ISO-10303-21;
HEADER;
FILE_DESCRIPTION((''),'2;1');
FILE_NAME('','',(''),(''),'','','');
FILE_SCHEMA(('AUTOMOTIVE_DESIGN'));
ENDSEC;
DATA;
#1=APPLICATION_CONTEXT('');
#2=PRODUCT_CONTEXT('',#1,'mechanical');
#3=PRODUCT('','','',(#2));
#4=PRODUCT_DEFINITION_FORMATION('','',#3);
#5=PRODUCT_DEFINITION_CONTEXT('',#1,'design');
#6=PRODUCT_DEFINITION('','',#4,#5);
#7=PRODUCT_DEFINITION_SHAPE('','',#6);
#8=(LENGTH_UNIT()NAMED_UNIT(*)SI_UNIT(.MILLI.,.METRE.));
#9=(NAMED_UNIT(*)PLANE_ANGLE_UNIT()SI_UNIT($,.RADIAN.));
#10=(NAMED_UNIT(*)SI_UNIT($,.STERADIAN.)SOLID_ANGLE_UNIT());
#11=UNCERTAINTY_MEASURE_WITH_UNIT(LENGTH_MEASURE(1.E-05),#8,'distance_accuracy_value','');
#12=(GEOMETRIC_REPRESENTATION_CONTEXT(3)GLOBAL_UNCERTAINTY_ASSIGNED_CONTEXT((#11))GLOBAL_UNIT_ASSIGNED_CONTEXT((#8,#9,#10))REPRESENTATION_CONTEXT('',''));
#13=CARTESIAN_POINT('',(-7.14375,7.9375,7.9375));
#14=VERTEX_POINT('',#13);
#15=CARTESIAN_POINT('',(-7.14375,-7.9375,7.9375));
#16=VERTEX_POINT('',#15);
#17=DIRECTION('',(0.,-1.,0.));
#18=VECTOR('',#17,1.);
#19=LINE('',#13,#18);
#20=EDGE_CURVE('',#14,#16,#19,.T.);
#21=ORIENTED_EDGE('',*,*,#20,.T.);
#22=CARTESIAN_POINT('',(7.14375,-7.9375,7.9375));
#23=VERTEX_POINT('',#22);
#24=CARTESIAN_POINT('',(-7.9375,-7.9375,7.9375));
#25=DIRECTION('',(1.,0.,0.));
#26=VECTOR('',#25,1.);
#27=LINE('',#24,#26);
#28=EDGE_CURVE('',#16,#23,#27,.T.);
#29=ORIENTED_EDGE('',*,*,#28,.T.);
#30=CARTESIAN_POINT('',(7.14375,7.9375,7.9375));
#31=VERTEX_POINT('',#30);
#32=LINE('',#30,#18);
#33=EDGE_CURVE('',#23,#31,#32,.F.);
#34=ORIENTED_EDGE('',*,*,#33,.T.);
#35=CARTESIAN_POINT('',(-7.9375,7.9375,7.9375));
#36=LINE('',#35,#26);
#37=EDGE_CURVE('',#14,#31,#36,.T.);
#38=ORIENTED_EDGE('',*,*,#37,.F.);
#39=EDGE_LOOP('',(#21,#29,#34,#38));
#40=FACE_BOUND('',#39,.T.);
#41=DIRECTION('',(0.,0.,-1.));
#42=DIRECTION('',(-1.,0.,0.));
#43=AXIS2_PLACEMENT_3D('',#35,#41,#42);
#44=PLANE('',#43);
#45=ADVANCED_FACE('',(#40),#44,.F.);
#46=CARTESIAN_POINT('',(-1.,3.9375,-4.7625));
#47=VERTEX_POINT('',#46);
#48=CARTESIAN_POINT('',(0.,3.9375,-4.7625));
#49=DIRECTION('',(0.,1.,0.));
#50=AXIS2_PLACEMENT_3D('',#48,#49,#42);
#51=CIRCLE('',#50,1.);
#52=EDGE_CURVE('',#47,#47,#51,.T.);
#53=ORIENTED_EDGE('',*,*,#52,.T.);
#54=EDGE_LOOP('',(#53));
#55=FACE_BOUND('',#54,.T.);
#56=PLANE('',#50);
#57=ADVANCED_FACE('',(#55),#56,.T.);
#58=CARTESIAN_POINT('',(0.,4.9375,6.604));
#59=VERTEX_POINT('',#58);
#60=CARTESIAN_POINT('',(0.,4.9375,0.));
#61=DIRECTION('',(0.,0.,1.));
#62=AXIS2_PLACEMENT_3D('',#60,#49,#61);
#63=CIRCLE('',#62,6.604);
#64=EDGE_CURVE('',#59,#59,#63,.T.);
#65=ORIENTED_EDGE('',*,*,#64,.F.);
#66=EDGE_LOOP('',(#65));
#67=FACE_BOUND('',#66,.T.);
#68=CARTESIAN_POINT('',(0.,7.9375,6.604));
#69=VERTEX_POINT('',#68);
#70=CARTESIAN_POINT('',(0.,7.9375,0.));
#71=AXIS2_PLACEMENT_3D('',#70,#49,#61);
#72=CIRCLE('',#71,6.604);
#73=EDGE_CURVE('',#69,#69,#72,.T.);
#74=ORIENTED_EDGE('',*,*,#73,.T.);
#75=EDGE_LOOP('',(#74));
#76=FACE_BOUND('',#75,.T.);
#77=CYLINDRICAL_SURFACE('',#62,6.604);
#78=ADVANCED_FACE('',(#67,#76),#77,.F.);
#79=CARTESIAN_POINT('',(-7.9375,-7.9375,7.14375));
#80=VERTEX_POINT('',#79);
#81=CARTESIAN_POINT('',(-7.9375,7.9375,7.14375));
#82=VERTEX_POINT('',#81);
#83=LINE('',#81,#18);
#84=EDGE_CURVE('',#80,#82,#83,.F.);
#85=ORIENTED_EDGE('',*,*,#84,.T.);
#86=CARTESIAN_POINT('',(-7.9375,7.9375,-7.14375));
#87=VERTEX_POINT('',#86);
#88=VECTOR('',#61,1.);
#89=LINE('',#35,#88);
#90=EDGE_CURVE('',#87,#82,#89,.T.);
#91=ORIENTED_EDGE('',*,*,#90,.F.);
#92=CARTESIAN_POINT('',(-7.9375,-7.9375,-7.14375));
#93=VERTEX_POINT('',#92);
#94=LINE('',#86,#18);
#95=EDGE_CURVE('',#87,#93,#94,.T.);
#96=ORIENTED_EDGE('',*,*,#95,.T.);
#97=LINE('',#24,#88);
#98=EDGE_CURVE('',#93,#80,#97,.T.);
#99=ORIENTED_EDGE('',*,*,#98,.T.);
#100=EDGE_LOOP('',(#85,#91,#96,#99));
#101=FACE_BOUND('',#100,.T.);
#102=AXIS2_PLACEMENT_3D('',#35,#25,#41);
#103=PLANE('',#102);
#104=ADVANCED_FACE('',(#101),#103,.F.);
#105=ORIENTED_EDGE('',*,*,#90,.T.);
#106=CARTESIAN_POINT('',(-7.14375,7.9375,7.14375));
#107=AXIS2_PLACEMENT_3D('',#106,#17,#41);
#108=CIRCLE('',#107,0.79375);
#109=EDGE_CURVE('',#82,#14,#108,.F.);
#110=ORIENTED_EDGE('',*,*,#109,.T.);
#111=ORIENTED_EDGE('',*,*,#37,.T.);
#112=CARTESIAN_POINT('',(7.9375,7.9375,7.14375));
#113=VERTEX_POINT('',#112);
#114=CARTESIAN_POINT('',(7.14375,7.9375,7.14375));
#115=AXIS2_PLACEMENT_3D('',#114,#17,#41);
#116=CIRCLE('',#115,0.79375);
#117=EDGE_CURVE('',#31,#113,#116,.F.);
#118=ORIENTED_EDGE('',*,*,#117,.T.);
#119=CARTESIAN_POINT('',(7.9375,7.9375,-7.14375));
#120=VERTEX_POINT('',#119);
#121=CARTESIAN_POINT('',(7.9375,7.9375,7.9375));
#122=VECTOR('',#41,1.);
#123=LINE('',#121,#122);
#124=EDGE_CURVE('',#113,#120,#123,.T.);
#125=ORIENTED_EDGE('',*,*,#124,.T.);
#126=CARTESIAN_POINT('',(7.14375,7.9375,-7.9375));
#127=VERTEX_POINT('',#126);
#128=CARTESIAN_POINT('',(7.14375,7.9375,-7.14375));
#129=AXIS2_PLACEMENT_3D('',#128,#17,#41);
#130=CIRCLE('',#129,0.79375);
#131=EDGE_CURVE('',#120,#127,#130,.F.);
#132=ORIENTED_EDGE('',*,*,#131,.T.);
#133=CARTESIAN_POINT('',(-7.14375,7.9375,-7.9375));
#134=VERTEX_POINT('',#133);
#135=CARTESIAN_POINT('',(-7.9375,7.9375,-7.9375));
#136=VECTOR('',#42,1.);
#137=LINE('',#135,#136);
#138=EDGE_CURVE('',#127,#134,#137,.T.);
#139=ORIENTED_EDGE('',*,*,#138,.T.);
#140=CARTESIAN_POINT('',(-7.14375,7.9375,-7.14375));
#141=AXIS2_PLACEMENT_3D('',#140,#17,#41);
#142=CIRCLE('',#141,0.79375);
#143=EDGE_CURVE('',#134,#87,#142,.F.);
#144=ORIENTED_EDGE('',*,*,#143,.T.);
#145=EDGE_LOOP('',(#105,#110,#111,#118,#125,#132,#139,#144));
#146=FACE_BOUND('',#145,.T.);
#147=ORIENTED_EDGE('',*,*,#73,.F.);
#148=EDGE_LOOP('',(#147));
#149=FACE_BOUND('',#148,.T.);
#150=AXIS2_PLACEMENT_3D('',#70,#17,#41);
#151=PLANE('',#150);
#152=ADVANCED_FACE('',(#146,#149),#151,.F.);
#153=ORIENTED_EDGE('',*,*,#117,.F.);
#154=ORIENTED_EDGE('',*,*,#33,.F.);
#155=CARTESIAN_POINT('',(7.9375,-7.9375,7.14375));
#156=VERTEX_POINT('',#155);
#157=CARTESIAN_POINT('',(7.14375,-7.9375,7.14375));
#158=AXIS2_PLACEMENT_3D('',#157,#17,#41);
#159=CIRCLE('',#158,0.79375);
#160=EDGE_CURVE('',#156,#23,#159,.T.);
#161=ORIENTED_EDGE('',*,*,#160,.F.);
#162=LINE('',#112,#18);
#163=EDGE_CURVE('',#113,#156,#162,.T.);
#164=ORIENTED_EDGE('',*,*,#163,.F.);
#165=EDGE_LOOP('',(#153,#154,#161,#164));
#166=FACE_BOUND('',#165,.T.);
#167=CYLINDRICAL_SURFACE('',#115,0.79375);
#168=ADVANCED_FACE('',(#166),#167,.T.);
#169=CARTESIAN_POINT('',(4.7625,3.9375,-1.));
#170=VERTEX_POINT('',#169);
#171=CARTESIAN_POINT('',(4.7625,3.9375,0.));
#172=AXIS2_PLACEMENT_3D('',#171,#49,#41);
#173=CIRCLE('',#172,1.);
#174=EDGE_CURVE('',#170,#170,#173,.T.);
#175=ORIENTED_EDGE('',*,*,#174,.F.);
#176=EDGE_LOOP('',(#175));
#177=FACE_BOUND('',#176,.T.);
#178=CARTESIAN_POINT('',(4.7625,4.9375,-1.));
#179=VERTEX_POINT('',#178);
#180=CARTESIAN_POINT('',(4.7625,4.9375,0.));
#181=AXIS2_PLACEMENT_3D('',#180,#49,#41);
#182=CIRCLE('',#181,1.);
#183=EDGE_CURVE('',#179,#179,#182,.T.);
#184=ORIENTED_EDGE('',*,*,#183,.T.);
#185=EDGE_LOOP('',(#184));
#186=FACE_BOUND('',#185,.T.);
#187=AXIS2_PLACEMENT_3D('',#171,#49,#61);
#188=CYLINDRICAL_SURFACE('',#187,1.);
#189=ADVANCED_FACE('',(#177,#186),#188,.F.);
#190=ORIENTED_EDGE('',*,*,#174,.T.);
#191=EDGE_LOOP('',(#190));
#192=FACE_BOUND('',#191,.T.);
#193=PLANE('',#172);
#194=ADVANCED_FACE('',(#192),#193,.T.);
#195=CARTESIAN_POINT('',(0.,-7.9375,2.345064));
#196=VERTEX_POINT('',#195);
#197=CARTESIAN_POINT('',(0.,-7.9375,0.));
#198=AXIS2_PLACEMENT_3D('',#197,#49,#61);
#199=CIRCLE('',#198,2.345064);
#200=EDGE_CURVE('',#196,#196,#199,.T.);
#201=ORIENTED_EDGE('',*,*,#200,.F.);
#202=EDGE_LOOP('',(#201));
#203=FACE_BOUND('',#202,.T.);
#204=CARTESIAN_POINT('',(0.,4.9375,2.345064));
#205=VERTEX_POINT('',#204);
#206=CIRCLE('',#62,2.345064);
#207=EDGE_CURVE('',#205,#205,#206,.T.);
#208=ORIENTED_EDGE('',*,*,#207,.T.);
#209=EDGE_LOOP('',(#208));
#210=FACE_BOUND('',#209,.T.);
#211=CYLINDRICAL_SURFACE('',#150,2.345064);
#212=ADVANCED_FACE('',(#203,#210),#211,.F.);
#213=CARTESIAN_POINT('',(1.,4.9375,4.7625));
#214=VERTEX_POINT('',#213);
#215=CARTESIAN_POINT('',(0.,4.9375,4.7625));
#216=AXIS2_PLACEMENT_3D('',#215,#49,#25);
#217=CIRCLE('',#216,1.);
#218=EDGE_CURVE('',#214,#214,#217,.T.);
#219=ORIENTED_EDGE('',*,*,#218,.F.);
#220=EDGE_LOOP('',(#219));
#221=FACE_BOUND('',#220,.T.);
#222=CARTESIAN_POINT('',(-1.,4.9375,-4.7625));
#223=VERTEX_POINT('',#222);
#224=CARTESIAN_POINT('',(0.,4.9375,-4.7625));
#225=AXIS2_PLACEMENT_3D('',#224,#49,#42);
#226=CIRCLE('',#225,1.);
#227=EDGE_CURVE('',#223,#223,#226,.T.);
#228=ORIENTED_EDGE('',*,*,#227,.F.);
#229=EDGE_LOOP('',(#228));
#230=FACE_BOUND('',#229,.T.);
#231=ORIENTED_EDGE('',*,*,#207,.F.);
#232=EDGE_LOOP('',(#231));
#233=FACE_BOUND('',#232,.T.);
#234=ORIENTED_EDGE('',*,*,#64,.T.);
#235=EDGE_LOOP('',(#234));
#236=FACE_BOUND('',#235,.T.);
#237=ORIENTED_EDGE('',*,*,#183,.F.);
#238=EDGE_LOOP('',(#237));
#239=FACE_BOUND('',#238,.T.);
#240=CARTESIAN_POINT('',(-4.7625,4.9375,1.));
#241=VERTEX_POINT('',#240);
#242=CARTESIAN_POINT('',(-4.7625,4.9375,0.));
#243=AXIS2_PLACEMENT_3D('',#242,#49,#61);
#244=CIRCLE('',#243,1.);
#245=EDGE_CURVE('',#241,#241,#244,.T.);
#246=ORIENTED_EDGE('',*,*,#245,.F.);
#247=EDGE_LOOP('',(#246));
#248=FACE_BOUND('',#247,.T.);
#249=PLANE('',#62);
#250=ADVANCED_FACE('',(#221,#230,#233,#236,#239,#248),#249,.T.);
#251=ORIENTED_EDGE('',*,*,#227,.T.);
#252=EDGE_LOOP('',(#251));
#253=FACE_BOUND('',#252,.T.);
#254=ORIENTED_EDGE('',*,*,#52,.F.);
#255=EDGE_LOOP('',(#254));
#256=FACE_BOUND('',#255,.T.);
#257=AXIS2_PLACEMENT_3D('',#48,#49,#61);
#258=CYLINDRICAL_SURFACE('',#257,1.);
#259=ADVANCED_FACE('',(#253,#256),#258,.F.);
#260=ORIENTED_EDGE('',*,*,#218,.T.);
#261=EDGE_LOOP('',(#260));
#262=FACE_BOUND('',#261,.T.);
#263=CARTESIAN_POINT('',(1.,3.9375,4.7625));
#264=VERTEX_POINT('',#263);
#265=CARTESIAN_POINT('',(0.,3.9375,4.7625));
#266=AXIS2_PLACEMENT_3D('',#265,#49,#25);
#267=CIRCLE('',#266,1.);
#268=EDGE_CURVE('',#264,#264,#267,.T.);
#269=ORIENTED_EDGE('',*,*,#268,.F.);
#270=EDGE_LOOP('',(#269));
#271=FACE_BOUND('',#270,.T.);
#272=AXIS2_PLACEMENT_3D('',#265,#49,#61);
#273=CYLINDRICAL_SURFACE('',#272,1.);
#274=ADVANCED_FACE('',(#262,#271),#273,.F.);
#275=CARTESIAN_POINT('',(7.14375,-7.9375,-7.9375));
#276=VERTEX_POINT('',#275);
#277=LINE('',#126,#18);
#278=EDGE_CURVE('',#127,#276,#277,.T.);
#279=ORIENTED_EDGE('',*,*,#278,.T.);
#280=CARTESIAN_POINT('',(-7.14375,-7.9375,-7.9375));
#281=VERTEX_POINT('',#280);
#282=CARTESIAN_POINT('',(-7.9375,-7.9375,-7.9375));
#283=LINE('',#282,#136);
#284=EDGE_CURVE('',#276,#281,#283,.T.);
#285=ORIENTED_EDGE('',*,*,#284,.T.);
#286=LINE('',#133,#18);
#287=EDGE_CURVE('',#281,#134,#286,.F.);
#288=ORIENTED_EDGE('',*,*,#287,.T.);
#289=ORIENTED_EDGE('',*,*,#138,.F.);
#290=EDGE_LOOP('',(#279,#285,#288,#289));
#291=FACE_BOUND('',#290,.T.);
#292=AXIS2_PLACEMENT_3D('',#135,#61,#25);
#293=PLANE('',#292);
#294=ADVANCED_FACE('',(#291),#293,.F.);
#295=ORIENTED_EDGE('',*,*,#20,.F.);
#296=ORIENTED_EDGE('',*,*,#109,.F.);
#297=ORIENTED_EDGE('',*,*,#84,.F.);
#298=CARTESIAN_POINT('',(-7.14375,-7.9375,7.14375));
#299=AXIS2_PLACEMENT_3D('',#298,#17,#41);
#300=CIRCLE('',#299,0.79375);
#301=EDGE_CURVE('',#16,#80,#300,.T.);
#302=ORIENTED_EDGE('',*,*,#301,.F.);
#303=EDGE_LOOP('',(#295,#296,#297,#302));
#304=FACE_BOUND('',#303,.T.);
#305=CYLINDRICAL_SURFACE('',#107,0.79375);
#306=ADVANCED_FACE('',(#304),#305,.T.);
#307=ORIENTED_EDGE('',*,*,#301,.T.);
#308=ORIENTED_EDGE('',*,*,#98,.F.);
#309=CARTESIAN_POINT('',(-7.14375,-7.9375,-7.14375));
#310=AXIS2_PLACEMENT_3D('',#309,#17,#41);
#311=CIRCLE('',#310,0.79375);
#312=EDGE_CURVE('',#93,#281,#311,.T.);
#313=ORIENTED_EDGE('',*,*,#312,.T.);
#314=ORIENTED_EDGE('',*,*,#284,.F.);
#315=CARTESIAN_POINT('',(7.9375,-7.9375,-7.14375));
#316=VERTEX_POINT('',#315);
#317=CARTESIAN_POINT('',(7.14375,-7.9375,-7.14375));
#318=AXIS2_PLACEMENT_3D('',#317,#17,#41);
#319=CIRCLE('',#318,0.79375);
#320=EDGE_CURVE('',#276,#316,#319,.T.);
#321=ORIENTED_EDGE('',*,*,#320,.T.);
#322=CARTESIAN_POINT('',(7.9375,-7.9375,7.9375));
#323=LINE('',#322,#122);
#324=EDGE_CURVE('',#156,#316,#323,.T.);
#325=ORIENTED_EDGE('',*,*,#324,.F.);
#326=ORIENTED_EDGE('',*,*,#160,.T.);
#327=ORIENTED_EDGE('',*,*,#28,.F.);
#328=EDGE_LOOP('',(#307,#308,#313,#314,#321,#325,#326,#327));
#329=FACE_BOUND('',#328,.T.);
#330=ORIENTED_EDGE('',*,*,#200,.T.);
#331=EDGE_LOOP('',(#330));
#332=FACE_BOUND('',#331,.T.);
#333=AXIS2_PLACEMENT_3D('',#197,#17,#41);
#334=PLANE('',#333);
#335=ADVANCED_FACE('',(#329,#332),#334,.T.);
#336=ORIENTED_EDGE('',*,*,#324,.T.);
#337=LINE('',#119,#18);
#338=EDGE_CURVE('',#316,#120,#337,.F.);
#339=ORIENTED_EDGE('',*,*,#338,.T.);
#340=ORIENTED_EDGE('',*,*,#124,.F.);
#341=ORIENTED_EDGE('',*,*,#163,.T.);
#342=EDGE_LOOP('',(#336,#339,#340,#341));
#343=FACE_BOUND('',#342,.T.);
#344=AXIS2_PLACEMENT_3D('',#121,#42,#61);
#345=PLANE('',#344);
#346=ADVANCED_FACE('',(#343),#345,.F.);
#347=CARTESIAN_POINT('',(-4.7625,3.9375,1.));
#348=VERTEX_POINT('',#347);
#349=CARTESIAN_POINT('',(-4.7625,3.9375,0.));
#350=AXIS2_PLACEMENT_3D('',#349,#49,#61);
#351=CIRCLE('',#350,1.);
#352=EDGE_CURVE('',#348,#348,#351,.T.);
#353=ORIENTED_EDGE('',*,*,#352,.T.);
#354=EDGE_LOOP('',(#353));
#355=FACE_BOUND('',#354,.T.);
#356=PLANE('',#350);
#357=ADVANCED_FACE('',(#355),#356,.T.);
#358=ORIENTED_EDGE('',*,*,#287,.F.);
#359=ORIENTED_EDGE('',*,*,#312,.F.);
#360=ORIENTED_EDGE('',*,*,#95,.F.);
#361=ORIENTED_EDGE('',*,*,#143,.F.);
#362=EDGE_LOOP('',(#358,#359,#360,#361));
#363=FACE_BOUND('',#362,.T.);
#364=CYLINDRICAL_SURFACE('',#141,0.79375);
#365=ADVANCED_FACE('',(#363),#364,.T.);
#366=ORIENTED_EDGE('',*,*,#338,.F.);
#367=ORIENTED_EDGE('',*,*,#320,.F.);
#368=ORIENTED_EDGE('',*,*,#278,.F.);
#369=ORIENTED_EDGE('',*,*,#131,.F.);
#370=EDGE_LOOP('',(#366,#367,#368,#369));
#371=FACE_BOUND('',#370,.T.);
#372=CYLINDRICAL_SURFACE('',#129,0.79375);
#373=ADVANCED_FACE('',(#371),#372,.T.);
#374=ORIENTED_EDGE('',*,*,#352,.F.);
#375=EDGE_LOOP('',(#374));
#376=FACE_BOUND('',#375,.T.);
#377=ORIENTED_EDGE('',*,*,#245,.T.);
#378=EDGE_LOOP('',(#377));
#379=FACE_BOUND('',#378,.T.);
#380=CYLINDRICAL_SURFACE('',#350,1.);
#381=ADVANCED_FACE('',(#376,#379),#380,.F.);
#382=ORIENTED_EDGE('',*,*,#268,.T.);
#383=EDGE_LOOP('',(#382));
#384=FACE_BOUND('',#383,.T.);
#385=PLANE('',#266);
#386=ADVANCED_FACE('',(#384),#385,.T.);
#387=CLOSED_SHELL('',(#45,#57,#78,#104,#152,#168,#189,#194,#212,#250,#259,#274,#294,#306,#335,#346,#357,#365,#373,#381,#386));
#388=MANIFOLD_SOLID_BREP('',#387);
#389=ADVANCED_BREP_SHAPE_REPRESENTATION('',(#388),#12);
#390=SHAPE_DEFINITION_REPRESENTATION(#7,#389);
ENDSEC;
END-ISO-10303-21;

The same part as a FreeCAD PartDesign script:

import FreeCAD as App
import Part
import Sketcher
Q = App.Units.Quantity


def edges_at(feature, points):
    """Names of the edges that pass closest to the given points."""
    edges = feature.Shape.Edges
    near = lambda p: min(range(len(edges)), key=lambda i: edges[i].distToShape(Part.Vertex(*p))[0])
    return sorted({f"Edge{near(p) + 1}" for p in points})

doc = App.newDocument("Part")
body = doc.addObject("PartDesign::Body", "Body")

# Sketch on XZ plane
sketch1 = doc.addObject("Sketcher::SketchObject", "Sketch")
body.addObject(sketch1)
sketch1.AttachmentSupport = (doc.XZ_Plane, [""])
sketch1.MapMode = "FlatFace"
sketch1.addGeometry([
    Part.LineSegment(App.Vector(-7.9, -7.9, 0), App.Vector(-7.9, 7.9, 0)),  # 0
    Part.LineSegment(App.Vector(-7.9, 7.9, 0), App.Vector(7.9, 7.9, 0)),  # 1
    Part.LineSegment(App.Vector(7.9, 7.9, 0), App.Vector(7.9, -7.9, 0)),  # 2
    Part.LineSegment(App.Vector(7.9, -7.9, 0), App.Vector(-7.9, -7.9, 0)),  # 3
    Part.Circle(App.Vector(0, 0, 0), App.Vector(0, 0, 1), 2.3),  # 4
], False)
sketch1.addConstraint([
    Sketcher.Constraint("Coincident", 0, 2, 1, 1),
    Sketcher.Constraint("Coincident", 1, 2, 2, 1),
    Sketcher.Constraint("Coincident", 2, 2, 3, 1),
    Sketcher.Constraint("Coincident", 3, 2, 0, 1),
    Sketcher.Constraint("Vertical", 0),
    Sketcher.Constraint("Horizontal", 1),
    Sketcher.Constraint("Vertical", 2),
    Sketcher.Constraint("Horizontal", 3),
    Sketcher.Constraint("Coincident", 4, 3, -1, 1),
    Sketcher.Constraint("Symmetric", 0, 2, 2, 2, -1, 1),
    Sketcher.Constraint("Equal", 3, 0),
    Sketcher.Constraint("DistanceX", 1, 1, 1, 2, Q("0.625 in")),
    Sketcher.Constraint("Diameter", 4, Q("4.690128 mm")),
])
pad1 = doc.addObject("PartDesign::Pad", "Pad")
body.addObject(pad1)
pad1.Profile = sketch1
pad1.Length = Q("0.625 in")
pad1.Midplane = True

# Sketch on XZ plane
sketch2 = doc.addObject("Sketcher::SketchObject", "Sketch001")
body.addObject(sketch2)
sketch2.AttachmentSupport = (doc.XZ_Plane, [""])
sketch2.MapMode = "FlatFace"
sketch2.AttachmentOffset = App.Placement(App.Vector(0, 0, -0.3125 * 25.4), App.Rotation())
sketch2.addGeometry(Part.Circle(App.Vector(0, 0, 0), App.Vector(0, 0, 1), 7), False)
sketch2.addConstraint([
    Sketcher.Constraint("Coincident", 0, 3, -1, 1),
    Sketcher.Constraint("Diameter", 0, Q("0.52 in")),
])
pocket1 = doc.addObject("PartDesign::Pocket", "Pocket")
body.addObject(pocket1)
pocket1.Profile = sketch2
pocket1.Length = 3
pocket1.Reversed = True

# Sketch on XZ plane
sketch3 = doc.addObject("Sketcher::SketchObject", "Sketch002")
body.addObject(sketch3)
sketch3.AttachmentSupport = (doc.XZ_Plane, [""])
sketch3.MapMode = "FlatFace"
sketch3.AttachmentOffset = App.Placement(App.Vector(0, 0, -4.9375), App.Rotation())
sketch3.addGeometry(Part.Circle(App.Vector(-4.8, 0, 0), App.Vector(0, 0, 1), 1), False)
sketch3.addConstraint([
    Sketcher.Constraint("PointOnObject", 0, 3, -1),
    Sketcher.Constraint("Diameter", 0, Q("2 mm")),
    Sketcher.Constraint("DistanceX", 0, 3, -1, 1, Q("0.1875 in")),
])
pocket2 = doc.addObject("PartDesign::Pocket", "Pocket001")
body.addObject(pocket2)
pocket2.Profile = sketch3
pocket2.Length = 1
pocket2.Reversed = True
doc.recompute()

fillet = doc.addObject("PartDesign::Fillet", "Fillet")
body.addObject(fillet)
fillet.Base = (pocket2, edges_at(pocket2, [
    (7.938, 0, 7.938),
    (-7.938, 0, 7.938),
    (-7.938, 0, -7.938),
    (7.938, 0, -7.938),
]))
fillet.Radius = Q("0.03125 in")
doc.recompute()

polarpattern = doc.addObject("PartDesign::PolarPattern", "PolarPattern")
body.addObject(polarpattern)
polarpattern.Originals = [pocket2]
polarpattern.Axis = (doc.Y_Axis, [""])
polarpattern.Angle = 360
polarpattern.Occurrences = 4
body.Tip = polarpattern

doc.recompute()
